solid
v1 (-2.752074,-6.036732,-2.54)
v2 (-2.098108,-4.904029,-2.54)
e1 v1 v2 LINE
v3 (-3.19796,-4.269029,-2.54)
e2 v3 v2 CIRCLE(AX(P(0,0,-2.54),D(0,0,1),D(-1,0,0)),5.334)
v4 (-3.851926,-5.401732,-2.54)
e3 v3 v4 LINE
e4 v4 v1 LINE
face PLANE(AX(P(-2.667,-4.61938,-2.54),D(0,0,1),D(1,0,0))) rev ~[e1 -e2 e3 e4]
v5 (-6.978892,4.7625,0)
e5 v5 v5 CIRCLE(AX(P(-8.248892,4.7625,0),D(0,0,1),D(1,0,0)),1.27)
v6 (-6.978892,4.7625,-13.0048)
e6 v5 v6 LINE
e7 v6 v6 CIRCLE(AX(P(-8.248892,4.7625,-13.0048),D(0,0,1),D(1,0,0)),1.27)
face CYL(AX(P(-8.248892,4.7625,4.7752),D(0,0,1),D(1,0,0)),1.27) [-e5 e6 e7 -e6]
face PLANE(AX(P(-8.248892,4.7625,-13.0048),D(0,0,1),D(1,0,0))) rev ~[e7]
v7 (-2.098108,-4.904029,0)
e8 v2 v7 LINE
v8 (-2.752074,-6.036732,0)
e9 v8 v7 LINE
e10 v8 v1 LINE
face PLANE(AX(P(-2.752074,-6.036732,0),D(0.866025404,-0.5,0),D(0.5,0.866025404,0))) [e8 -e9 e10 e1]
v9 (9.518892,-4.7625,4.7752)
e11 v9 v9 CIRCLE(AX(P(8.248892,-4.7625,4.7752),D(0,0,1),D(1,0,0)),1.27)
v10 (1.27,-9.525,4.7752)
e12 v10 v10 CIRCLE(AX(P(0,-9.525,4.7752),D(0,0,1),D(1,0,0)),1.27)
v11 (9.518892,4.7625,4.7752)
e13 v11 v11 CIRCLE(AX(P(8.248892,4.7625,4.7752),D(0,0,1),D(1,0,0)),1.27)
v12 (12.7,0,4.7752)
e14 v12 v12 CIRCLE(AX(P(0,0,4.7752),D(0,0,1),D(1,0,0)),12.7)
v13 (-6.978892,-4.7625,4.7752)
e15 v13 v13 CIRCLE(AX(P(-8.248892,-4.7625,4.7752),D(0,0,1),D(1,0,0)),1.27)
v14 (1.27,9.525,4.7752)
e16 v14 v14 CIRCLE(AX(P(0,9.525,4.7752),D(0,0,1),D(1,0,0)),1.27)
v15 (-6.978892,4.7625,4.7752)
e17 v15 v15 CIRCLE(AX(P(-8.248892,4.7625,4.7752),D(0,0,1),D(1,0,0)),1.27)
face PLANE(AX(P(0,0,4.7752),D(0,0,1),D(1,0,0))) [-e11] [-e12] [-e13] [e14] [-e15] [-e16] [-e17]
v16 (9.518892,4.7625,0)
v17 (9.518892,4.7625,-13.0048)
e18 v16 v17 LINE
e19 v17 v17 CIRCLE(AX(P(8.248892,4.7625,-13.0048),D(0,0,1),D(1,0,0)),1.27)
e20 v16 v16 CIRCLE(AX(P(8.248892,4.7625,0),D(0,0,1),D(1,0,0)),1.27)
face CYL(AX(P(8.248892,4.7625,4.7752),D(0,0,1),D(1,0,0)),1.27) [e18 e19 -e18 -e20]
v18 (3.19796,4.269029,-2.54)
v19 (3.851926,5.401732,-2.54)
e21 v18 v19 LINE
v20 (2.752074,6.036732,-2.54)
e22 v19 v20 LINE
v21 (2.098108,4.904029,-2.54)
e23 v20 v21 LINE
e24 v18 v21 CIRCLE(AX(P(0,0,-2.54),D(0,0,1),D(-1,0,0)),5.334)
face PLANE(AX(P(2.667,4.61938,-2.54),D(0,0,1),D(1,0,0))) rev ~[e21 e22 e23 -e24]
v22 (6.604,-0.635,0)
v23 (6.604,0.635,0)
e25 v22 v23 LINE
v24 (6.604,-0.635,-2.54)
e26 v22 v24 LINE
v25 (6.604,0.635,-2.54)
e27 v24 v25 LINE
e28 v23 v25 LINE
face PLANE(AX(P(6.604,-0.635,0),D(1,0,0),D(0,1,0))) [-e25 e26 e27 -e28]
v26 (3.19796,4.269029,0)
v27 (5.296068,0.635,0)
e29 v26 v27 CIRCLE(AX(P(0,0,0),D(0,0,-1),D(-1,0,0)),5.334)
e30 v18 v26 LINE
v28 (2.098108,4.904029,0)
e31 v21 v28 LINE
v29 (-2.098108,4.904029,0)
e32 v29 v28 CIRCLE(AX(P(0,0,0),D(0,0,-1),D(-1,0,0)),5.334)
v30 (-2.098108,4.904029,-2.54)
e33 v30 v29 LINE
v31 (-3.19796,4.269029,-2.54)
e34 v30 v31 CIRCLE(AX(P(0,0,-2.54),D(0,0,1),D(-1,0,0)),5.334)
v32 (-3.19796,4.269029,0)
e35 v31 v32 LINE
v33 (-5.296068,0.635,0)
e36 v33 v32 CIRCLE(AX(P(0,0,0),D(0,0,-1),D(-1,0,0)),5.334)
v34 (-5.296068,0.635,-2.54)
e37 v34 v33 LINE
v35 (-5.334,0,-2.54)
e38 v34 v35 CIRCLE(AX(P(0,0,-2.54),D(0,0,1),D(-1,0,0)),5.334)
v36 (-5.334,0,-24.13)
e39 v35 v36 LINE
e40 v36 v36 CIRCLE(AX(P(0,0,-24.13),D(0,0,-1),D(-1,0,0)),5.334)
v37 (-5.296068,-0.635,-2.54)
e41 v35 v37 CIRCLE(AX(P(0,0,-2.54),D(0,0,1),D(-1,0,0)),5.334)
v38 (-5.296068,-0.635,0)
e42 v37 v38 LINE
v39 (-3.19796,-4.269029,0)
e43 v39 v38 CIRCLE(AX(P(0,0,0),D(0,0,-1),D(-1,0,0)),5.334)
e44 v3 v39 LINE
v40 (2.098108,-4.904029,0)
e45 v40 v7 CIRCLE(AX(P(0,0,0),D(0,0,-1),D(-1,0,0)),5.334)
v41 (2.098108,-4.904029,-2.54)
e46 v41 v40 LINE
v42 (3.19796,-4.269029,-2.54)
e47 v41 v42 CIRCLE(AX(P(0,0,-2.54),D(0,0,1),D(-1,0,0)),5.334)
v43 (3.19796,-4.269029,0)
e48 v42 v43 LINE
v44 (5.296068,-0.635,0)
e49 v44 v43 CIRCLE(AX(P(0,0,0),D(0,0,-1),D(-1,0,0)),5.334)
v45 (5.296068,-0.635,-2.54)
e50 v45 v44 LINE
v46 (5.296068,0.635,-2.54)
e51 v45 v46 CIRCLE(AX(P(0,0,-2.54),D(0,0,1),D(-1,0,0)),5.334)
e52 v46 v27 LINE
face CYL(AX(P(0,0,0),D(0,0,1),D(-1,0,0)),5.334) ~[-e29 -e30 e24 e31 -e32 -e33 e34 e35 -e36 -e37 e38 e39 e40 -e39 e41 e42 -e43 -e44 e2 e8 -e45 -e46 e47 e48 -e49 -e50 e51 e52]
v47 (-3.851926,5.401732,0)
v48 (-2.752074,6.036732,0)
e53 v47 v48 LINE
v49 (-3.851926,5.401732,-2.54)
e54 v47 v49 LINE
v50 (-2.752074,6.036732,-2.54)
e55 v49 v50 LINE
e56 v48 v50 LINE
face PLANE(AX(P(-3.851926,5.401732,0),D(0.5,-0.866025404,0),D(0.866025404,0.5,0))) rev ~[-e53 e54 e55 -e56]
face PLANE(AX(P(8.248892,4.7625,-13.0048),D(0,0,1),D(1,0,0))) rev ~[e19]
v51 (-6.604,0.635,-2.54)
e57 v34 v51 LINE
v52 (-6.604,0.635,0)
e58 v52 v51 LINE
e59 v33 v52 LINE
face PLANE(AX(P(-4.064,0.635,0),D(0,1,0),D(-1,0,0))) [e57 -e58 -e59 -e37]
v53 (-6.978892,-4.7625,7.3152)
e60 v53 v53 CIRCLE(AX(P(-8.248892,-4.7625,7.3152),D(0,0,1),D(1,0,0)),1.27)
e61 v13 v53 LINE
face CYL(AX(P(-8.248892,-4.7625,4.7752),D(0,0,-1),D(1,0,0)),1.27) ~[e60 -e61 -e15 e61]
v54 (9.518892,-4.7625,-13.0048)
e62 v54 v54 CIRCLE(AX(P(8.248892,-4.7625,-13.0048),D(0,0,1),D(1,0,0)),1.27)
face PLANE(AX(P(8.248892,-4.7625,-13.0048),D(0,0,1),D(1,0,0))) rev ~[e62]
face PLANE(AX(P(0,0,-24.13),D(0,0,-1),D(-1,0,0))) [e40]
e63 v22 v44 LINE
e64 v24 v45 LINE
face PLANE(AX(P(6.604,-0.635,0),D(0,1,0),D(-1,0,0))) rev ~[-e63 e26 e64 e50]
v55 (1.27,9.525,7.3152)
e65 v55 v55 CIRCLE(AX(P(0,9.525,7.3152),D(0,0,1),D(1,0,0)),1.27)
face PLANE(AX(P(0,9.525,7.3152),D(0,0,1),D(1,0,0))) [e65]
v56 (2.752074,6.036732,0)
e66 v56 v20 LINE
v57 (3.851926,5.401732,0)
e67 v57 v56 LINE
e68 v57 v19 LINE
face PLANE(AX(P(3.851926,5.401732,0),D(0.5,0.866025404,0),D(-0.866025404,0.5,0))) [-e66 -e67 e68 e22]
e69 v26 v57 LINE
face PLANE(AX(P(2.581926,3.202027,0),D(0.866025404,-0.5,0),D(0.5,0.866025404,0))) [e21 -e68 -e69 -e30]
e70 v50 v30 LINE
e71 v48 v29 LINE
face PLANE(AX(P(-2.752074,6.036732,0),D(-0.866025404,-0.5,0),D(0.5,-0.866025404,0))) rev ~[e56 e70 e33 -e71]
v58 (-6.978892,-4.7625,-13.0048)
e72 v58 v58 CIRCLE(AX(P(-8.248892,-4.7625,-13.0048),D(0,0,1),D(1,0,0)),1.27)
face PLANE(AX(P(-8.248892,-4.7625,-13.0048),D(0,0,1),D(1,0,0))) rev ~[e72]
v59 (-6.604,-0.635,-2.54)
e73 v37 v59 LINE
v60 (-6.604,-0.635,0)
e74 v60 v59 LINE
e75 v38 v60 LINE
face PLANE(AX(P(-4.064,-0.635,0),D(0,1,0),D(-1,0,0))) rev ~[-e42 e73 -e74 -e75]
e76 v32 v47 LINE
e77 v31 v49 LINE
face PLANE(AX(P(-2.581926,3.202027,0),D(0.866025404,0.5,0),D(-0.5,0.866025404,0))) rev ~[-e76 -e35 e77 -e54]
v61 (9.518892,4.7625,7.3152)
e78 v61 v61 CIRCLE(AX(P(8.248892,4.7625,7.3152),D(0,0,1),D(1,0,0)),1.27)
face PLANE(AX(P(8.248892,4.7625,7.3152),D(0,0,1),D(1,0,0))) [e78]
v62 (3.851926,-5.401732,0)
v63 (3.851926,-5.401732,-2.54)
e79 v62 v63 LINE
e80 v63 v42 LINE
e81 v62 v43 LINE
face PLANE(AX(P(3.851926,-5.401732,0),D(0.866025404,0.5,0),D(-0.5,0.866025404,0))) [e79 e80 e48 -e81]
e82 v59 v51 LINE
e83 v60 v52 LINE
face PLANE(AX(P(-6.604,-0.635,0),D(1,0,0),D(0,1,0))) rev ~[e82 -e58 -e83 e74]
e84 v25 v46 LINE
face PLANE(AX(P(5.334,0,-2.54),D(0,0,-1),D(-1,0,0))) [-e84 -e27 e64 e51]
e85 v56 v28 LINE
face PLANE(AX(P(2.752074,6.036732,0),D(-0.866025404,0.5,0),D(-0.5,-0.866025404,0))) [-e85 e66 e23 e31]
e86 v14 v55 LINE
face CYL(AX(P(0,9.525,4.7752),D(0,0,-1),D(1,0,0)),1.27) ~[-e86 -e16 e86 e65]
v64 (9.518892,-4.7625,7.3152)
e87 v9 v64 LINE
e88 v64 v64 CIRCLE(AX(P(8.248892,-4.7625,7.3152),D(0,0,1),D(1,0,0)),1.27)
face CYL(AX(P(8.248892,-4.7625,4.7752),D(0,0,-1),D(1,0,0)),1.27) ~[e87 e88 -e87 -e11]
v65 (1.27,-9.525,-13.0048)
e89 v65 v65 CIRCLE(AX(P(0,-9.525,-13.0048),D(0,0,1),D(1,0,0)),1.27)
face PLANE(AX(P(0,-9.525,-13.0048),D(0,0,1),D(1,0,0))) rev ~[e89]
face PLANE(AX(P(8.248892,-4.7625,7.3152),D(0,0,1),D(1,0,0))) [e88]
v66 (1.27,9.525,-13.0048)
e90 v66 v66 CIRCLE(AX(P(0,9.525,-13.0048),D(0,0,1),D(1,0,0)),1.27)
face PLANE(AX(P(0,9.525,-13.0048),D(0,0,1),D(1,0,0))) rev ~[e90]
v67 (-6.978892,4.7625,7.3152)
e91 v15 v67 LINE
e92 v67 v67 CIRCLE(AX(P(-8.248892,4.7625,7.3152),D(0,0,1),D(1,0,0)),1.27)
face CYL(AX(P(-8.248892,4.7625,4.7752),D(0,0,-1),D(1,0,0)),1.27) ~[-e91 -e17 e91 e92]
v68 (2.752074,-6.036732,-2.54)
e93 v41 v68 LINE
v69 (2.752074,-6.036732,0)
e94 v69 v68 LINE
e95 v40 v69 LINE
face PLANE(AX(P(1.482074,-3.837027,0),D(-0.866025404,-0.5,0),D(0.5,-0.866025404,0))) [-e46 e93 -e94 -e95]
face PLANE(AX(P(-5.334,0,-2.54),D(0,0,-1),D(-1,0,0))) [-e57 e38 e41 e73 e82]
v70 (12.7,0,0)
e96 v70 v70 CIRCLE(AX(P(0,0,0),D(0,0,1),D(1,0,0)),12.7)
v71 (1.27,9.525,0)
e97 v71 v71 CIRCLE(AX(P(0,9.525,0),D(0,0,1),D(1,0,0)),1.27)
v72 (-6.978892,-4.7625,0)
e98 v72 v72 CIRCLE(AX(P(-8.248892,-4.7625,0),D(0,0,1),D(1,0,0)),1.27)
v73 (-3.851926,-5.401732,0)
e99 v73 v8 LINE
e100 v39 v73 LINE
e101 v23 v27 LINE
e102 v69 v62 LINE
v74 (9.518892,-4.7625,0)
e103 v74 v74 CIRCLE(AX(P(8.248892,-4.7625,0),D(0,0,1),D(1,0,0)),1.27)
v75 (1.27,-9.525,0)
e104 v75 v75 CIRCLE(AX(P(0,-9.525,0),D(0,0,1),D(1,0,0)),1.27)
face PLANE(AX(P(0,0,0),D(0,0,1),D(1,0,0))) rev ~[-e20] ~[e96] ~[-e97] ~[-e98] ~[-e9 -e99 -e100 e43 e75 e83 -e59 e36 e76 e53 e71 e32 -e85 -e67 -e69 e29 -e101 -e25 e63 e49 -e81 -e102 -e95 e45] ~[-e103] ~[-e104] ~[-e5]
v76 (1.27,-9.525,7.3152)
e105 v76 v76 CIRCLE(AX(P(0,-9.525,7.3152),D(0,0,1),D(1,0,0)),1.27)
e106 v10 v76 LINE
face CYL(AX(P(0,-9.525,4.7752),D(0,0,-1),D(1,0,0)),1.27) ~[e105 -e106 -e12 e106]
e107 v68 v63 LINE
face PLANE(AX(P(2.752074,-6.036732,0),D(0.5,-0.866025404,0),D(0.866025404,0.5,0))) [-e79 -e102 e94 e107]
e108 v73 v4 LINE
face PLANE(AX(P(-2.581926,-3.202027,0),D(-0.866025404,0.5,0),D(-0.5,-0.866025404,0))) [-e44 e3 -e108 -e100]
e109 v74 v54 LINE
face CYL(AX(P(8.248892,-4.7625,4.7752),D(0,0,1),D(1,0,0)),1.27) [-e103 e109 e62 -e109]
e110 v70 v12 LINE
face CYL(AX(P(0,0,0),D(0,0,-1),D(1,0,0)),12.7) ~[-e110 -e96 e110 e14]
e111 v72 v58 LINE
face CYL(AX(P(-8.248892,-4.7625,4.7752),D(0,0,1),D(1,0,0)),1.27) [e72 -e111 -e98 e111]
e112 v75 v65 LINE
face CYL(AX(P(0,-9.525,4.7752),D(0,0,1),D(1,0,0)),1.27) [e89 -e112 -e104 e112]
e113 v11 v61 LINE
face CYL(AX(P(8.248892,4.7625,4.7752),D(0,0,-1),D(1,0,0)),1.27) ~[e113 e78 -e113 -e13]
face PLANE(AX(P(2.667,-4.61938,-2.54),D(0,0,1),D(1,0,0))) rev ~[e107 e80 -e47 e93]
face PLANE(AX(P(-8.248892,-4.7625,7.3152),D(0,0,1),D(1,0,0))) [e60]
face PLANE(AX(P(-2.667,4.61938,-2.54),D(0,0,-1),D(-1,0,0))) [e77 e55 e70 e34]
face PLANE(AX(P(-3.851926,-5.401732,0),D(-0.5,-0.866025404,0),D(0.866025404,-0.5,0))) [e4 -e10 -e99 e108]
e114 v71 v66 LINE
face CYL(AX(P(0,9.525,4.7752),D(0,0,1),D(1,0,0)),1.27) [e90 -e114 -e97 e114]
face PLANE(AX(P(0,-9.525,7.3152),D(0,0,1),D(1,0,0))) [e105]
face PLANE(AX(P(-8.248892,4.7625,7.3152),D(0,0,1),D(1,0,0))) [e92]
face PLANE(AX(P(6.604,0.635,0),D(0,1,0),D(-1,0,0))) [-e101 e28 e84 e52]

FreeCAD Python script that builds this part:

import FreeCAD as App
import Part
import Sketcher
from FreeCAD import Vector
Q = App.Units.Quantity

doc = App.newDocument("Part")
body = doc.addObject("PartDesign::Body", "Body")

sketch1 = body.newObject("Sketcher::SketchObject", "Sketch")
sketch1.AttachmentSupport = (doc.getObject("XY_Plane"), [""])
sketch1.MapMode = "FlatFace"
sketch1.addGeometry(Part.Circle(Vector(0, 0, 0), Vector(0, 0, 1), 13), False)
sketch1.addConstraint([
    Sketcher.Constraint("Coincident", 0, 3, -1, 1),
    Sketcher.Constraint("Diameter", 0, Q("1 in")),
])
pad1 = body.newObject("PartDesign::Pad", "Pad")
pad1.Profile = sketch1
pad1.Length = Q("0.188 in")

sketch2 = body.newObject("Sketcher::SketchObject", "Sketch001")
sketch2.AttachmentSupport = (doc.getObject("XY_Plane"), [""])
sketch2.MapMode = "FlatFace"
sketch2.addGeometry(Part.Circle(Vector(0, 0, 0), Vector(0, 0, 1), 5), False)
sketch2.addConstraint([
    Sketcher.Constraint("Coincident", 0, 3, -1, 1),
    Sketcher.Constraint("Diameter", 0, Q("0.42 in")),
])
pad2 = body.newObject("PartDesign::Pad", "Pad001")
pad2.Profile = sketch2
pad2.Length = Q("0.95 in")
pad2.Reversed = True

sketch3 = body.newObject("Sketcher::SketchObject", "Sketch002")
sketch3.AttachmentSupport = (doc.getObject("XY_Plane"), [""])
sketch3.MapMode = "FlatFace"
sketch3.AttachmentOffset = App.Placement(Vector(0, 0, 0.188 * 25.4), App.Rotation())
sketch3.addGeometry([
    Part.Circle(Vector(0, 9.5, 0), Vector(0, 0, 1), 1.3),
    Part.Circle(Vector(8.2, 4.8, 0), Vector(0, 0, 1), 1.3),
    Part.Circle(Vector(8.2, -4.8, 0), Vector(0, 0, 1), 1.3),
    Part.Circle(Vector(0, -9.5, 0), Vector(0, 0, 1), 1.3),
    Part.Circle(Vector(-8.2, -4.8, 0), Vector(0, 0, 1), 1.3),
    Part.Circle(Vector(-8.2, 4.8, 0), Vector(0, 0, 1), 1.3),
], False)
sketch3.addConstraint([
    Sketcher.Constraint("Equal", 0, 1),
    Sketcher.Constraint("Equal", 1, 2),
    Sketcher.Constraint("Equal", 2, 3),
    Sketcher.Constraint("Equal", 3, 4),
    Sketcher.Constraint("Equal", 4, 5),
    Sketcher.Constraint("Symmetric", 0, 3, 3, 3, -1, 1),
    Sketcher.Constraint("Symmetric", 1, 3, 4, 3, -1, 1),
    Sketcher.Constraint("Symmetric", 2, 3, 5, 3, -1, 1),
    Sketcher.Constraint("Symmetric", 2, 3, 4, 3, -2),
    Sketcher.Constraint("PointOnObject", 0, 3, -2),
    Sketcher.Constraint("Diameter", 0, Q("0.1 in")),
    Sketcher.Constraint("DistanceY", 3, 3, 0, 3, Q("0.75 in")),
    Sketcher.Constraint("DistanceY", -1, 1, 1, 3, Q("0.1875 in")),
    Sketcher.Constraint("DistanceX", -1, 1, 1, 3, 8.248892),
])
pad3 = body.newObject("PartDesign::Pad", "Pad002")
pad3.Profile = sketch3
pad3.Type = "TwoLengths"
pad3.Length = Q("0.1 in")
pad3.Length2 = Q("0.7 in")

sketch4 = body.newObject("Sketcher::SketchObject", "Sketch003")
sketch4.AttachmentSupport = (doc.getObject("XY_Plane"), [""])
sketch4.MapMode = "FlatFace"
sketch4.addGeometry([
    Part.LineSegment(Vector(-1.5, 3.8, 0), Vector(-2.6, 3.2, 0)),
    Part.LineSegment(Vector(-2.6, 3.2, 0), Vector(-3.9, 5.4, 0)),
    Part.LineSegment(Vector(-3.9, 5.4, 0), Vector(-2.8, 6, 0)),
    Part.LineSegment(Vector(-2.8, 6, 0), Vector(-1.5, 3.8, 0)),
    Part.LineSegment(Vector(-4.1, 0.6, 0), Vector(-4.1, -0.6, 0)),
    Part.LineSegment(Vector(-4.1, -0.6, 0), Vector(-6.6, -0.6, 0)),
    Part.LineSegment(Vector(-6.6, -0.6, 0), Vector(-6.6, 0.6, 0)),
    Part.LineSegment(Vector(-6.6, 0.6, 0), Vector(-4.1, 0.6, 0)),
    Part.LineSegment(Vector(-3.9, -5.4, 0), Vector(-2.6, -3.2, 0)),
    Part.LineSegment(Vector(-2.6, -3.2, 0), Vector(-1.5, -3.8, 0)),
    Part.LineSegment(Vector(-1.5, -3.8, 0), Vector(-2.8, -6, 0)),
    Part.LineSegment(Vector(-2.8, -6, 0), Vector(-3.9, -5.4, 0)),
    Part.LineSegment(Vector(2.8, -6, 0), Vector(1.5, -3.8, 0)),
    Part.LineSegment(Vector(1.5, -3.8, 0), Vector(2.6, -3.2, 0)),
    Part.LineSegment(Vector(2.6, -3.2, 0), Vector(3.9, -5.4, 0)),
    Part.LineSegment(Vector(3.9, -5.4, 0), Vector(2.8, -6, 0)),
    Part.LineSegment(Vector(6.6, 0.6, 0), Vector(6.6, -0.6, 0)),
    Part.LineSegment(Vector(6.6, -0.6, 0), Vector(4.1, -0.6, 0)),
    Part.LineSegment(Vector(4.1, -0.6, 0), Vector(4.1, 0.6, 0)),
    Part.LineSegment(Vector(4.1, 0.6, 0), Vector(6.6, 0.6, 0)),
    Part.LineSegment(Vector(3.9, 5.4, 0), Vector(2.6, 3.2, 0)),
    Part.LineSegment(Vector(2.6, 3.2, 0), Vector(1.5, 3.8, 0)),
    Part.LineSegment(Vector(1.5, 3.8, 0), Vector(2.8, 6, 0)),
    Part.LineSegment(Vector(2.8, 6, 0), Vector(3.9, 5.4, 0)),
], False)
sketch4.addConstraint([
    Sketcher.Constraint("Coincident", 0, 2, 1, 1),
    Sketcher.Constraint("Coincident", 1, 2, 2, 1),
    Sketcher.Constraint("Coincident", 2, 2, 3, 1),
    Sketcher.Constraint("Coincident", 3, 2, 0, 1),
    Sketcher.Constraint("Coincident", 4, 2, 5, 1),
    Sketcher.Constraint("Coincident", 5, 2, 6, 1),
    Sketcher.Constraint("Coincident", 6, 2, 7, 1),
    Sketcher.Constraint("Coincident", 7, 2, 4, 1),
    Sketcher.Constraint("Coincident", 8, 2, 9, 1),
    Sketcher.Constraint("Coincident", 9, 2, 10, 1),
    Sketcher.Constraint("Coincident", 10, 2, 11, 1),
    Sketcher.Constraint("Coincident", 11, 2, 8, 1),
    Sketcher.Constraint("Coincident", 12, 2, 13, 1),
    Sketcher.Constraint("Coincident", 13, 2, 14, 1),
    Sketcher.Constraint("Coincident", 14, 2, 15, 1),
    Sketcher.Constraint("Coincident", 15, 2, 12, 1),
    Sketcher.Constraint("Coincident", 16, 2, 17, 1),
    Sketcher.Constraint("Coincident", 17, 2, 18, 1),
    Sketcher.Constraint("Coincident", 18, 2, 19, 1),
    Sketcher.Constraint("Coincident", 19, 2, 16, 1),
    Sketcher.Constraint("Coincident", 20, 2, 21, 1),
    Sketcher.Constraint("Coincident", 21, 2, 22, 1),
    Sketcher.Constraint("Coincident", 22, 2, 23, 1),
    Sketcher.Constraint("Coincident", 23, 2, 20, 1),
    Sketcher.Constraint("Vertical", 4),
    Sketcher.Constraint("Horizontal", 5),
    Sketcher.Constraint("Vertical", 6),
    Sketcher.Constraint("Horizontal", 7),
    Sketcher.Constraint("Vertical", 16),
    Sketcher.Constraint("Horizontal", 17),
    Sketcher.Constraint("Vertical", 18),
    Sketcher.Constraint("Horizontal", 19),
    Sketcher.Constraint("Symmetric", 3, 2, 12, 2, -1, 1),
    Sketcher.Constraint("Symmetric", 0, 2, 13, 2, -1, 1),
    Sketcher.Constraint("Symmetric", 1, 2, 14, 2, -1, 1),
    Sketcher.Constraint("Symmetric", 2, 2, 15, 2, -1, 1),
    Sketcher.Constraint("Symmetric", 6, 2, 16, 2, -1, 1),
    Sketcher.Constraint("Symmetric", 4, 2, 18, 2, -1, 1),
    Sketcher.Constraint("Symmetric", 8, 2, 20, 2, -1, 1),
    Sketcher.Constraint("Symmetric", 9, 2, 21, 2, -1, 1),
    Sketcher.Constraint("Symmetric", 10, 2, 22, 2, -1, 1),
    Sketcher.Constraint("Symmetric", 11, 2, 23, 2, -1, 1),
    Sketcher.Constraint("Symmetric", 9, 2, 12, 2, -2),
    Sketcher.Constraint("Symmetric", 8, 2, 13, 2, -2),
    Sketcher.Constraint("Symmetric", 11, 2, 14, 2, -2),
    Sketcher.Constraint("Symmetric", 10, 2, 15, 2, -2),
    Sketcher.Constraint("Perpendicular", 0, 1),
    Sketcher.Constraint("Perpendicular", 1, 2),
    Sketcher.Constraint("Perpendicular", 2, 3),
    Sketcher.Constraint("Horizontal", 5, 2, 16, 2),
    Sketcher.Constraint("DistanceX", 5, 2, 5, 1, Q("0.1 in")),
    Sketcher.Constraint("Angle", 0, Q("-150 deg")),
    Sketcher.Constraint("Distance", 1, Q("0.1 in")),
    Sketcher.Constraint("DistanceY", 4, 2, 4, 1, Q("0.05 in")),
    Sketcher.Constraint("Distance", 0, Q("0.05 in")),
    Sketcher.Constraint("DistanceX", 4, 2, -1, 1, Q("0.16 in")),
    Sketcher.Constraint("DistanceX", 8, 2, 12, 2, Q("0.16 in")),
    Sketcher.Constraint("DistanceY", -1, 1, 1, 2, 5.401732),
])
pad4 = body.newObject("PartDesign::Pad", "Pad003")
pad4.Profile = sketch4
pad4.Length = Q("0.1 in")
pad4.Reversed = True

doc.recompute()
